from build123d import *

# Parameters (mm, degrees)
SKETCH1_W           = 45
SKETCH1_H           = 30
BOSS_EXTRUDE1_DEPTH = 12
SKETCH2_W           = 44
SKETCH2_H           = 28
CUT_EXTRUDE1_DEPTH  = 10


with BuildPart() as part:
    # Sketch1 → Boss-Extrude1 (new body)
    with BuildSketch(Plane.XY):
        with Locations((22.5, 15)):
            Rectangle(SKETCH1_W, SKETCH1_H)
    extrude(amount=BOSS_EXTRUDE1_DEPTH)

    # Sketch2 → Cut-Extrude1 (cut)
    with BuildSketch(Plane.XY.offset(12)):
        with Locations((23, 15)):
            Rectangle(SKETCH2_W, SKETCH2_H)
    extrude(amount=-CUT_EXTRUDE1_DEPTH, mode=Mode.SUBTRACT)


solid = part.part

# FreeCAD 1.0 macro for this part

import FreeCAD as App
import Part
import Sketcher
from FreeCAD import Vector

doc = App.newDocument("Part")
body = doc.addObject("PartDesign::Body", "Body")

# Sketch on XY plane
sketch1 = body.newObject("Sketcher::SketchObject", "Sketch")
sketch1.AttachmentSupport = (doc.getObject("XY_Plane"), [""])
sketch1.MapMode = "FlatFace"
sketch1.addGeometry([
    Part.LineSegment(Vector(0, 30, 0), Vector(0, 0, 0)),
    Part.LineSegment(Vector(0, 0, 0), Vector(45, 0, 0)),
    Part.LineSegment(Vector(45, 0, 0), Vector(45, 30, 0)),
    Part.LineSegment(Vector(45, 30, 0), Vector(0, 30, 0)),
], False)
sketch1.addConstraint([
    Sketcher.Constraint("Coincident", 0, 2, 1, 1),
    Sketcher.Constraint("Coincident", 1, 2, 2, 1),
    Sketcher.Constraint("Coincident", 2, 2, 3, 1),
    Sketcher.Constraint("Coincident", 3, 2, 0, 1),
    Sketcher.Constraint("Vertical", 0),
    Sketcher.Constraint("Horizontal", 1),
    Sketcher.Constraint("Vertical", 2),
    Sketcher.Constraint("Horizontal", 3),
    Sketcher.Constraint("Coincident", 0, 2, -1, 1),
    Sketcher.Constraint("DistanceX", 1, 1, 1, 2, 45.0),
    Sketcher.Constraint("DistanceY", 0, 2, 0, 1, 30.0),
])
pad1 = body.newObject("PartDesign::Pad", "Pad")
pad1.Profile = sketch1
pad1.Length = 12

# Sketch on XY plane
sketch2 = body.newObject("Sketcher::SketchObject", "Sketch001")
sketch2.AttachmentSupport = (doc.getObject("XY_Plane"), [""])
sketch2.MapMode = "FlatFace"
sketch2.AttachmentOffset = App.Placement(Vector(0, 0, 12), App.Rotation())
sketch2.addGeometry([
    Part.LineSegment(Vector(1, 29, 0), Vector(1, 1, 0)),
    Part.LineSegment(Vector(1, 1, 0), Vector(45, 1, 0)),
    Part.LineSegment(Vector(45, 1, 0), Vector(45, 29, 0)),
    Part.LineSegment(Vector(45, 29, 0), Vector(1, 29, 0)),
], False)
sketch2.addConstraint([
    Sketcher.Constraint("Coincident", 0, 2, 1, 1),
    Sketcher.Constraint("Coincident", 1, 2, 2, 1),
    Sketcher.Constraint("Coincident", 2, 2, 3, 1),
    Sketcher.Constraint("Coincident", 3, 2, 0, 1),
    Sketcher.Constraint("Vertical", 0),
    Sketcher.Constraint("Horizontal", 1),
    Sketcher.Constraint("Vertical", 2),
    Sketcher.Constraint("Horizontal", 3),
    Sketcher.Constraint("DistanceX", 1, 1, 1, 2, 44.0),
    Sketcher.Constraint("DistanceY", 0, 2, 0, 1, 28.0),
    Sketcher.Constraint("DistanceX", -1, 1, 0, 2, 1.0),
    Sketcher.Constraint("DistanceY", -1, 1, 0, 2, 1.0),
])
pocket1 = body.newObject("PartDesign::Pocket", "Pocket")
pocket1.Profile = sketch2
pocket1.Length = 10

doc.recompute()
